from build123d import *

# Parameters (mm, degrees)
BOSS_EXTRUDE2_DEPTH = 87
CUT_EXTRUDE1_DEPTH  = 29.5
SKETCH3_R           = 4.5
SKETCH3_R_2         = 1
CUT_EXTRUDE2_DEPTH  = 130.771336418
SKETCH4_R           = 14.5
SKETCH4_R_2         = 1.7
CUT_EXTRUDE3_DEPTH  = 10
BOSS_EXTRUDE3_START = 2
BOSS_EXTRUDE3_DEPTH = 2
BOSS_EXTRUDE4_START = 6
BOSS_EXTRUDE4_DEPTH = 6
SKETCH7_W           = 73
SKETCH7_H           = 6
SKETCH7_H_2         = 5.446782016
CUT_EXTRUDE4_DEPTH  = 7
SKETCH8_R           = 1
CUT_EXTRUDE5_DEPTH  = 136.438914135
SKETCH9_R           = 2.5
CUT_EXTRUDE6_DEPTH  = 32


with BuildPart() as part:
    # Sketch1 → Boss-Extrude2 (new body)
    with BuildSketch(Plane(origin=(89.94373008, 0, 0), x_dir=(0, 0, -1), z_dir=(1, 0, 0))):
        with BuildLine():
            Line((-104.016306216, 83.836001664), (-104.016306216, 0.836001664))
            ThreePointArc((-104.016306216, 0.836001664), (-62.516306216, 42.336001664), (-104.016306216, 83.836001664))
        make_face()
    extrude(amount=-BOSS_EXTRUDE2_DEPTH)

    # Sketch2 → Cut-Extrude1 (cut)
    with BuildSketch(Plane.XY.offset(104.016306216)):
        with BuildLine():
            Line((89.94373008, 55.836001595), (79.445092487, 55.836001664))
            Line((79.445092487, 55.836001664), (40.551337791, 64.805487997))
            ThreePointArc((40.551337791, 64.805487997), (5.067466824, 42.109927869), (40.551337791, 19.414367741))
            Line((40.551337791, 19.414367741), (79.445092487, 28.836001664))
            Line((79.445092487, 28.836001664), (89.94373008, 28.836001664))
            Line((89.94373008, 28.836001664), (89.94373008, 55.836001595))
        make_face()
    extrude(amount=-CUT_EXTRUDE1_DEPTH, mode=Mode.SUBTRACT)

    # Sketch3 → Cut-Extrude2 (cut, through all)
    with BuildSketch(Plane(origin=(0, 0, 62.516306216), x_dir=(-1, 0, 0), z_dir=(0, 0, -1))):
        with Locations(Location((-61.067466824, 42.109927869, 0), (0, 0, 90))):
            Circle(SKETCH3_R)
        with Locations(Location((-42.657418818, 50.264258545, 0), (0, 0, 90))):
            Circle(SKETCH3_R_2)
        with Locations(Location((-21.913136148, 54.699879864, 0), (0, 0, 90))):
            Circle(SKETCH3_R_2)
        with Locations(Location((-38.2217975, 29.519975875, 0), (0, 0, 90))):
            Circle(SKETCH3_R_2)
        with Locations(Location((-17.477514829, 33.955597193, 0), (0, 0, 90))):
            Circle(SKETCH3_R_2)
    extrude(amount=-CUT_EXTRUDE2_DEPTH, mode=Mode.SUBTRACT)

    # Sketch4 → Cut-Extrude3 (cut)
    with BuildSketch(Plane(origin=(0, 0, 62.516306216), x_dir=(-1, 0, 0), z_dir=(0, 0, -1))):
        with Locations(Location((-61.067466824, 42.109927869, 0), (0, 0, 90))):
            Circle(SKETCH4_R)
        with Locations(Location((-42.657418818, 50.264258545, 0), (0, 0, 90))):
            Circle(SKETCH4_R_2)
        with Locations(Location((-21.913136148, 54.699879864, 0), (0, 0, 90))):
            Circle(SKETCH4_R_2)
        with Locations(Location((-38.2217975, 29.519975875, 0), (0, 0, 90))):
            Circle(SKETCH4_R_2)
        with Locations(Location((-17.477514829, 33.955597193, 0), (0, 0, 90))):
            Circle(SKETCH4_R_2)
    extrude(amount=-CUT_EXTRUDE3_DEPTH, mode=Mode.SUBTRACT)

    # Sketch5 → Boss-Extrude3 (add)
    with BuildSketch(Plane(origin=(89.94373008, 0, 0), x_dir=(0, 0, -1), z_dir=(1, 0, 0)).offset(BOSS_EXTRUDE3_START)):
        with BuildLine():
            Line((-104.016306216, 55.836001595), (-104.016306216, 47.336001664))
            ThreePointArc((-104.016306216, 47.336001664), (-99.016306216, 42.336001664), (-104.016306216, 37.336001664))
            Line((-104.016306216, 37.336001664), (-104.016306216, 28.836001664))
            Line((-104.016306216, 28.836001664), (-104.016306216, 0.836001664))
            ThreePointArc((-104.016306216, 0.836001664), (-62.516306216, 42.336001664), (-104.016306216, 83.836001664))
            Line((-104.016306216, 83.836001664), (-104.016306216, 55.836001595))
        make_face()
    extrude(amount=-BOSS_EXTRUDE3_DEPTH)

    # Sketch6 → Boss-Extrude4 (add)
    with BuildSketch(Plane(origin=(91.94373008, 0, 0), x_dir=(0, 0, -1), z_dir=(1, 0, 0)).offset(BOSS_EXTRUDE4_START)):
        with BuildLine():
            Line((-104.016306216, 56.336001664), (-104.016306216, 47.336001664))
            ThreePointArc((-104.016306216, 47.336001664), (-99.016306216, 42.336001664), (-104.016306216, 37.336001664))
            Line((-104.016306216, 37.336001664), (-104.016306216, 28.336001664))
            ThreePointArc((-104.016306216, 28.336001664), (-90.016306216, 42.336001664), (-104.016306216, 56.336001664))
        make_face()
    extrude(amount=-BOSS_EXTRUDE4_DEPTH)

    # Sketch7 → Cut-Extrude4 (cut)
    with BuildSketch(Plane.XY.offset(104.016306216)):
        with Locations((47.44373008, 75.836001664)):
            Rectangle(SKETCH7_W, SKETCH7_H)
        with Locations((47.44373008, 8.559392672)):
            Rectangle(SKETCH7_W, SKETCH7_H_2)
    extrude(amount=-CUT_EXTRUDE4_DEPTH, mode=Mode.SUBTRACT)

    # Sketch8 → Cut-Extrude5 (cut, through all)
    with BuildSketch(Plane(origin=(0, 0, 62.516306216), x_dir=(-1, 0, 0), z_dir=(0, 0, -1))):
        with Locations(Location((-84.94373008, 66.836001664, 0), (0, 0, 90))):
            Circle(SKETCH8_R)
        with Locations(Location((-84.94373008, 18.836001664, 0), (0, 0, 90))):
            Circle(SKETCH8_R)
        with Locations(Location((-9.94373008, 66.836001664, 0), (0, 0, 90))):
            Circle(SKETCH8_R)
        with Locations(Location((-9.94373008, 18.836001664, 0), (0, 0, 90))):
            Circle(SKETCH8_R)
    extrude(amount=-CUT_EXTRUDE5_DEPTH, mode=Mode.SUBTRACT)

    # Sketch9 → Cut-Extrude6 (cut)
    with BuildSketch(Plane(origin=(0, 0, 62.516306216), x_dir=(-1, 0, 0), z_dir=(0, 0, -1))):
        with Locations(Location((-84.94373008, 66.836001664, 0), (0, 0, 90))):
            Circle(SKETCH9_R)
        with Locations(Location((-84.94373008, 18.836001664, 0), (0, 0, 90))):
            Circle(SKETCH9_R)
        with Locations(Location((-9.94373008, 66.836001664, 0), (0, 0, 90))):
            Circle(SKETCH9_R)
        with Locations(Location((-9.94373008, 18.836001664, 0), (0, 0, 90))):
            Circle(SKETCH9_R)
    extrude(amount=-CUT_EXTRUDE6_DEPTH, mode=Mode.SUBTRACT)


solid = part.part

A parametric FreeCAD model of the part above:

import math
import FreeCAD as App
import Part
import Sketcher

doc = App.newDocument("Part")
body = doc.addObject("PartDesign::Body", "Body")

sketch1 = body.newObject("Sketcher::SketchObject", "Sketch")
sketch1.AttachmentSupport = (doc.getObject("YZ_Plane"), [""])
sketch1.MapMode = "FlatFace"
sketch1.AttachmentOffset = App.Placement(App.Vector(0, 0, 89.94373), App.Rotation())
sketch1.addGeometry([
    Part.LineSegment(App.Vector(83.836002, 104.016306, 0), App.Vector(0.836002, 104.016306, 0)),
    Part.ArcOfCircle(Part.Circle(App.Vector(42.336002, 104.016306, 0), App.Vector(0, 0, 1), 41.5), math.radians(180), math.radians(360)),
], False)
sketch1.addConstraint([
    Sketcher.Constraint("Coincident", 0, 1, 1, 2),
    Sketcher.Constraint("Coincident", 1, 1, 0, 2),
    Sketcher.Constraint("Horizontal", 0),
    Sketcher.Constraint("Horizontal", 1, 3, 0, 1),
    Sketcher.Constraint("Radius", 1, 41.5),
    Sketcher.Constraint("DistanceX", -1, 1, 1, 3, 42.336002),
    Sketcher.Constraint("DistanceY", -1, 1, 1, 3, 104.016306),
])
pad1 = body.newObject("PartDesign::Pad", "Pad")
pad1.Profile = sketch1
pad1.Length = 87
pad1.Reversed = True

sketch2 = body.newObject("Sketcher::SketchObject", "Sketch001")
sketch2.AttachmentSupport = (doc.getObject("XY_Plane"), [""])
sketch2.MapMode = "FlatFace"
sketch2.AttachmentOffset = App.Placement(App.Vector(0, 0, 104.016306), App.Rotation())
sketch2.addGeometry([
    Part.LineSegment(App.Vector(89.94373, 55.836002, 0), App.Vector(79.445092, 55.836002, 0)),
    Part.LineSegment(App.Vector(79.445092, 55.836002, 0), App.Vector(40.551338, 64.805488, 0)),
    Part.ArcOfCircle(Part.Circle(App.Vector(30.067467, 42.109928, 0), App.Vector(0, 0, 1), 25), math.radians(65.206138), math.radians(294.793862)),
    Part.LineSegment(App.Vector(40.551338, 19.414368, 0), App.Vector(79.445092, 28.836002, 0)),
    Part.LineSegment(App.Vector(79.445092, 28.836002, 0), App.Vector(89.94373, 28.836002, 0)),
    Part.LineSegment(App.Vector(89.94373, 28.836002, 0), App.Vector(89.94373, 55.836002, 0)),
], False)
sketch2.addConstraint([
    Sketcher.Constraint("Coincident", 0, 2, 1, 1),
    Sketcher.Constraint("Coincident", 1, 2, 2, 1),
    Sketcher.Constraint("Coincident", 2, 2, 3, 1),
    Sketcher.Constraint("Coincident", 3, 2, 4, 1),
    Sketcher.Constraint("Coincident", 4, 2, 5, 1),
    Sketcher.Constraint("Coincident", 5, 2, 0, 1),
    Sketcher.Constraint("Horizontal", 0),
    Sketcher.Constraint("Horizontal", 4),
    Sketcher.Constraint("Vertical", 5),
    Sketcher.Constraint("Vertical", 1, 2, 2, 2),
    Sketcher.Constraint("Vertical", 0, 2, 3, 2),
    Sketcher.Constraint("Radius", 2, 25.0),
    Sketcher.Constraint("DistanceY", 5, 1, 5, 2, 27.0),
    Sketcher.Constraint("DistanceY", -1, 1, 0, 2, 55.836002),
    Sketcher.Constraint("DistanceX", 0, 2, 0, 1, 10.498638),
    Sketcher.Constraint("DistanceX", -1, 1, 4, 2, 89.94373),
    Sketcher.Constraint("DistanceX", 2, 3, 1, 2, 10.483871),
    Sketcher.Constraint("Distance", 1, 39.914607),
    Sketcher.Constraint("Distance", 3, 40.018637),
])
pocket1 = body.newObject("PartDesign::Pocket", "Pocket")
pocket1.Profile = sketch2
pocket1.Length = 29.5

sketch3 = body.newObject("Sketcher::SketchObject", "Sketch002")
sketch3.AttachmentSupport = (doc.getObject("XY_Plane"), [""])
sketch3.MapMode = "FlatFace"
sketch3.AttachmentOffset = App.Placement(App.Vector(0, 0, 62.516306), App.Rotation())
sketch3.addGeometry([
    Part.Circle(App.Vector(61.067467, 42.109928, 0), App.Vector(0, 0, 1), 4.5),
    Part.Circle(App.Vector(42.657419, 50.264259, 0), App.Vector(0, 0, 1), 1),
    Part.Circle(App.Vector(21.913136, 54.69988, 0), App.Vector(0, 0, 1), 1),
    Part.Circle(App.Vector(38.221798, 29.519976, 0), App.Vector(0, 0, 1), 1),
    Part.Circle(App.Vector(17.477515, 33.955597, 0), App.Vector(0, 0, 1), 1),
], False)
sketch3.addConstraint([
    Sketcher.Constraint("Equal", 1, 2),
    Sketcher.Constraint("Equal", 2, 3),
    Sketcher.Constraint("Equal", 3, 4),
    Sketcher.Constraint("Diameter", 0, 9.0),
    Sketcher.Constraint("Diameter", 1, 2.0),
    Sketcher.Constraint("DistanceX", -1, 1, 1, 3, 42.657419),
    Sketcher.Constraint("DistanceY", -1, 1, 1, 3, 50.264259),
    Sketcher.Constraint("DistanceY", -1, 1, 2, 3, 54.69988),
    Sketcher.Constraint("DistanceX", 1, 3, 0, 3, 18.410048),
    Sketcher.Constraint("DistanceY", 0, 3, 1, 3, 8.154331),
    Sketcher.Constraint("DistanceX", 2, 3, 0, 3, 39.154331),
    Sketcher.Constraint("DistanceX", 3, 3, 1, 3, 4.435621),
    Sketcher.Constraint("DistanceY", 3, 3, 0, 3, 12.589952),
    Sketcher.Constraint("DistanceY", 3, 3, 4, 3, 4.435621),
    Sketcher.Constraint("DistanceX", 4, 3, 2, 3, 4.435621),
])
pocket2 = body.newObject("PartDesign::Pocket", "Pocket001")
pocket2.Profile = sketch3
pocket2.Type = "ThroughAll"
pocket2.Reversed = True

sketch4 = body.newObject("Sketcher::SketchObject", "Sketch003")
sketch4.AttachmentSupport = (doc.getObject("XY_Plane"), [""])
sketch4.MapMode = "FlatFace"
sketch4.AttachmentOffset = App.Placement(App.Vector(0, 0, 62.516306), App.Rotation())
sketch4.addGeometry([
    Part.Circle(App.Vector(61.067467, 42.109928, 0), App.Vector(0, 0, 1), 14.5),
    Part.Circle(App.Vector(42.657419, 50.264259, 0), App.Vector(0, 0, 1), 1.7),
    Part.Circle(App.Vector(21.913136, 54.69988, 0), App.Vector(0, 0, 1), 1.7),
    Part.Circle(App.Vector(38.221798, 29.519976, 0), App.Vector(0, 0, 1), 1.7),
    Part.Circle(App.Vector(17.477515, 33.955597, 0), App.Vector(0, 0, 1), 1.7),
], False)
sketch4.addConstraint([
    Sketcher.Constraint("Equal", 1, 2),
    Sketcher.Constraint("Equal", 2, 3),
    Sketcher.Constraint("Equal", 3, 4),
    Sketcher.Constraint("Diameter", 0, 29.0),
    Sketcher.Constraint("Diameter", 1, 3.4),
    Sketcher.Constraint("DistanceX", -1, 1, 1, 3, 42.657419),
    Sketcher.Constraint("DistanceY", -1, 1, 1, 3, 50.264259),
    Sketcher.Constraint("DistanceY", -1, 1, 2, 3, 54.69988),
    Sketcher.Constraint("DistanceX", 1, 3, 0, 3, 18.410048),
    Sketcher.Constraint("DistanceY", 0, 3, 1, 3, 8.154331),
    Sketcher.Constraint("DistanceX", 2, 3, 0, 3, 39.154331),
    Sketcher.Constraint("DistanceX", 3, 3, 1, 3, 4.435621),
    Sketcher.Constraint("DistanceY", 3, 3, 0, 3, 12.589952),
    Sketcher.Constraint("DistanceY", 3, 3, 4, 3, 4.435621),
    Sketcher.Constraint("DistanceX", 4, 3, 2, 3, 4.435621),
])
pocket3 = body.newObject("PartDesign::Pocket", "Pocket002")
pocket3.Profile = sketch4
pocket3.Length = 10
pocket3.Reversed = True

sketch5 = body.newObject("Sketcher::SketchObject", "Sketch004")
sketch5.AttachmentSupport = (doc.getObject("YZ_Plane"), [""])
sketch5.MapMode = "FlatFace"
sketch5.AttachmentOffset = App.Placement(App.Vector(0, 0, 91.94373), App.Rotation())
sketch5.addGeometry([
    Part.ArcOfCircle(Part.Circle(App.Vector(42.336002, 104.016306, 0), App.Vector(0, 0, 1), 5), math.radians(180), math.radians(360)),
    Part.LineSegment(App.Vector(37.336002, 104.016306, 0), App.Vector(0.836002, 104.016306, 0)),
    Part.ArcOfCircle(Part.Circle(App.Vector(42.336002, 104.016306, 0), App.Vector(0, 0, 1), 41.5), math.radians(180), math.radians(360)),
    Part.LineSegment(App.Vector(83.836002, 104.016306, 0), App.Vector(47.336002, 104.016306, 0)),
], False)
sketch5.addConstraint([
    Sketcher.Constraint("Coincident", 0, 1, 1, 1),
    Sketcher.Constraint("Coincident", 1, 2, 2, 1),
    Sketcher.Constraint("Coincident", 2, 2, 3, 1),
    Sketcher.Constraint("Coincident", 3, 2, 0, 2),
    Sketcher.Constraint("Horizontal", 1),
    Sketcher.Constraint("Horizontal", 3),
    Sketcher.Constraint("Coincident", 2, 3, 0, 3),
    Sketcher.Constraint("Horizontal", 2, 3, 0, 1),
    Sketcher.Constraint("Horizontal", 1, 2, 2, 2),
    Sketcher.Constraint("Radius", 0, 5.0),
    Sketcher.Constraint("Radius", 2, 41.5),
    Sketcher.Constraint("DistanceX", -1, 1, 0, 3, 42.336002),
    Sketcher.Constraint("DistanceY", -1, 1, 0, 3, 104.016306),
])
pad2 = body.newObject("PartDesign::Pad", "Pad001")
pad2.Profile = sketch5
pad2.Length = 2
pad2.Reversed = True

sketch6 = body.newObject("Sketcher::SketchObject", "Sketch005")
sketch6.AttachmentSupport = (doc.getObject("YZ_Plane"), [""])
sketch6.MapMode = "FlatFace"
sketch6.AttachmentOffset = App.Placement(App.Vector(0, 0, 97.94373), App.Rotation())
sketch6.addGeometry([
    Part.LineSegment(App.Vector(56.336002, 104.016306, 0), App.Vector(47.336002, 104.016306, 0)),
    Part.ArcOfCircle(Part.Circle(App.Vector(42.336002, 104.016306, 0), App.Vector(0, 0, 1), 5), math.radians(180), math.radians(360)),
    Part.LineSegment(App.Vector(37.336002, 104.016306, 0), App.Vector(28.336002, 104.016306, 0)),
    Part.ArcOfCircle(Part.Circle(App.Vector(42.336002, 104.016306, 0), App.Vector(0, 0, 1), 14), math.radians(180), math.radians(360)),
], False)
sketch6.addConstraint([
    Sketcher.Constraint("Coincident", 0, 2, 1, 2),
    Sketcher.Constraint("Coincident", 1, 1, 2, 1),
    Sketcher.Constraint("Coincident", 2, 2, 3, 1),
    Sketcher.Constraint("Coincident", 3, 2, 0, 1),
    Sketcher.Constraint("Horizontal", 0),
    Sketcher.Constraint("Horizontal", 2),
    Sketcher.Constraint("Coincident", 3, 3, 1, 3),
    Sketcher.Constraint("Horizontal", 3, 3, 0, 2),
    Sketcher.Constraint("Horizontal", 0, 2, 1, 1),
    Sketcher.Constraint("Radius", 1, 5.0),
    Sketcher.Constraint("Radius", 3, 14.0),
    Sketcher.Constraint("DistanceX", -1, 1, 1, 3, 42.336002),
    Sketcher.Constraint("DistanceY", -1, 1, 1, 3, 104.016306),
])
pad3 = body.newObject("PartDesign::Pad", "Pad002")
pad3.Profile = sketch6
pad3.Length = 6
pad3.Reversed = True

sketch7 = body.newObject("Sketcher::SketchObject", "Sketch006")
sketch7.AttachmentSupport = (doc.getObject("XY_Plane"), [""])
sketch7.MapMode = "FlatFace"
sketch7.AttachmentOffset = App.Placement(App.Vector(0, 0, 104.016306), App.Rotation())
sketch7.addGeometry([
    Part.LineSegment(App.Vector(10.94373, 78.836002, 0), App.Vector(10.94373, 72.836002, 0)),
    Part.LineSegment(App.Vector(10.94373, 72.836002, 0), App.Vector(83.94373, 72.836002, 0)),
    Part.LineSegment(App.Vector(83.94373, 72.836002, 0), App.Vector(83.94373, 78.836002, 0)),
    Part.LineSegment(App.Vector(83.94373, 78.836002, 0), App.Vector(10.94373, 78.836002, 0)),
    Part.LineSegment(App.Vector(10.94373, 11.282784, 0), App.Vector(10.94373, 5.836002, 0)),
    Part.LineSegment(App.Vector(10.94373, 5.836002, 0), App.Vector(83.94373, 5.836002, 0)),
    Part.LineSegment(App.Vector(83.94373, 5.836002, 0), App.Vector(83.94373, 11.282784, 0)),
    Part.LineSegment(App.Vector(83.94373, 11.282784, 0), App.Vector(10.94373, 11.282784, 0)),
], False)
sketch7.addConstraint([
    Sketcher.Constraint("Coincident", 0, 2, 1, 1),
    Sketcher.Constraint("Coincident", 1, 2, 2, 1),
    Sketcher.Constraint("Coincident", 2, 2, 3, 1),
    Sketcher.Constraint("Coincident", 3, 2, 0, 1),
    Sketcher.Constraint("Coincident", 4, 2, 5, 1),
    Sketcher.Constraint("Coincident", 5, 2, 6, 1),
    Sketcher.Constraint("Coincident", 6, 2, 7, 1),
    Sketcher.Constraint("Coincident", 7, 2, 4, 1),
    Sketcher.Constraint("Vertical", 0),
    Sketcher.Constraint("Horizontal", 1),
    Sketcher.Constraint("Vertical", 2),
    Sketcher.Constraint("Horizontal", 3),
    Sketcher.Constraint("Vertical", 4),
    Sketcher.Constraint("Horizontal", 5),
    Sketcher.Constraint("Vertical", 6),
    Sketcher.Constraint("Horizontal", 7),
    Sketcher.Constraint("Vertical", 3, 2, 4, 2),
    Sketcher.Constraint("Vertical", 2, 2, 5, 2),
    Sketcher.Constraint("DistanceX", 1, 1, 1, 2, 73.0),
    Sketcher.Constraint("DistanceY", 0, 2, 0, 1, 6.0),
    Sketcher.Constraint("DistanceY", 4, 2, 0, 2, 67.0),
    Sketcher.Constraint("DistanceY", -1, 1, 0, 2, 72.836002),
    Sketcher.Constraint("DistanceY", 4, 2, 4, 1, 5.446782),
    Sketcher.Constraint("DistanceX", -1, 1, 0, 2, 10.94373),
])
pocket4 = body.newObject("PartDesign::Pocket", "Pocket003")
pocket4.Profile = sketch7
pocket4.Length = 7

sketch8 = body.newObject("Sketcher::SketchObject", "Sketch007")
sketch8.AttachmentSupport = (doc.getObject("XY_Plane"), [""])
sketch8.MapMode = "FlatFace"
sketch8.AttachmentOffset = App.Placement(App.Vector(0, 0, 62.516306), App.Rotation())
sketch8.addGeometry([
    Part.Circle(App.Vector(84.94373, 66.836002, 0), App.Vector(0, 0, 1), 1),
    Part.Circle(App.Vector(84.94373, 18.836002, 0), App.Vector(0, 0, 1), 1),
    Part.Circle(App.Vector(9.94373, 66.836002, 0), App.Vector(0, 0, 1), 1),
    Part.Circle(App.Vector(9.94373, 18.836002, 0), App.Vector(0, 0, 1), 1),
], False)
sketch8.addConstraint([
    Sketcher.Constraint("Equal", 0, 1),
    Sketcher.Constraint("Equal", 1, 2),
    Sketcher.Constraint("Equal", 2, 3),
    Sketcher.Constraint("Horizontal", 0, 3, 2, 3),
    Sketcher.Constraint("Horizontal", 1, 3, 3, 3),
    Sketcher.Constraint("Vertical", 0, 3, 1, 3),
    Sketcher.Constraint("Vertical", 2, 3, 3, 3),
    Sketcher.Constraint("Diameter", 0, 2.0),
    Sketcher.Constraint("DistanceY", 1, 3, 0, 3, 48.0),
    Sketcher.Constraint("DistanceX", 2, 3, 0, 3, 75.0),
    Sketcher.Constraint("DistanceY", -1, 1, 0, 3, 66.836002),
    Sketcher.Constraint("DistanceX", -1, 1, 0, 3, 84.94373),
])
pocket5 = body.newObject("PartDesign::Pocket", "Pocket004")
pocket5.Profile = sketch8
pocket5.Type = "ThroughAll"
pocket5.Reversed = True

sketch9 = body.newObject("Sketcher::SketchObject", "Sketch008")
sketch9.AttachmentSupport = (doc.getObject("XY_Plane"), [""])
sketch9.MapMode = "FlatFace"
sketch9.AttachmentOffset = App.Placement(App.Vector(0, 0, 62.516306), App.Rotation())
sketch9.addGeometry([
    Part.Circle(App.Vector(84.94373, 66.836002, 0), App.Vector(0, 0, 1), 2.5),
    Part.Circle(App.Vector(84.94373, 18.836002, 0), App.Vector(0, 0, 1), 2.5),
    Part.Circle(App.Vector(9.94373, 66.836002, 0), App.Vector(0, 0, 1), 2.5),
    Part.Circle(App.Vector(9.94373, 18.836002, 0), App.Vector(0, 0, 1), 2.5),
], False)
sketch9.addConstraint([
    Sketcher.Constraint("Equal", 0, 1),
    Sketcher.Constraint("Equal", 1, 2),
    Sketcher.Constraint("Equal", 2, 3),
    Sketcher.Constraint("Horizontal", 0, 3, 2, 3),
    Sketcher.Constraint("Horizontal", 1, 3, 3, 3),
    Sketcher.Constraint("Vertical", 0, 3, 1, 3),
    Sketcher.Constraint("Vertical", 2, 3, 3, 3),
    Sketcher.Constraint("Diameter", 0, 5.0),
    Sketcher.Constraint("DistanceY", 1, 3, 0, 3, 48.0),
    Sketcher.Constraint("DistanceX", 2, 3, 0, 3, 75.0),
    Sketcher.Constraint("DistanceY", -1, 1, 0, 3, 66.836002),
    Sketcher.Constraint("DistanceX", -1, 1, 0, 3, 84.94373),
])
pocket6 = body.newObject("PartDesign::Pocket", "Pocket005")
pocket6.Profile = sketch9
pocket6.Length = 32
pocket6.Reversed = True

doc.recompute()
